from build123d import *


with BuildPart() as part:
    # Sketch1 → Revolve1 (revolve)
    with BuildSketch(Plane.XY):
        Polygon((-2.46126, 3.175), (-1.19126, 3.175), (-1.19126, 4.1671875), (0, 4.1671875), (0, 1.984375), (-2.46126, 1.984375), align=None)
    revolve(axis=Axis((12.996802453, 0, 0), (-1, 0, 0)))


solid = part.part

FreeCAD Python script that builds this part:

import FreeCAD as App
import Part
import Sketcher
from FreeCAD import Vector
Q = App.Units.Quantity


def add_polygon(sketch, points):
    """Adds a closed chain of lines whose ends are joined by coincident constraints."""
    first, n = sketch.GeometryCount, len(points)
    for a, b in zip(points, points[1:] + points[:1]):
        sketch.addGeometry(Part.LineSegment(App.Vector(*a, 0), App.Vector(*b, 0)), False)
    for i in range(n):
        sketch.addConstraint(Sketcher.Constraint("Coincident", first + i, 2, first + (i + 1) % n, 1))

doc = App.newDocument("Part")
body = doc.addObject("PartDesign::Body", "Body")

# Sketch on XY plane
sketch1 = body.newObject("Sketcher::SketchObject", "Sketch")
sketch1.AttachmentSupport = (doc.getObject("XY_Plane"), [""])
sketch1.MapMode = "FlatFace"
add_polygon(sketch1, [(-1.2, 3.2), (-2.5, 3.2), (-2.5, 2), (0, 2), (0, 4.2), (-1.2, 4.2)])  # lines 0-5
sketch1.addConstraint([
    Sketcher.Constraint("Horizontal", 0),
    Sketcher.Constraint("Vertical", 1),
    Sketcher.Constraint("Horizontal", 2),
    Sketcher.Constraint("Vertical", 3),
    Sketcher.Constraint("Horizontal", 4),
    Sketcher.Constraint("Vertical", 5),
    Sketcher.Constraint("PointOnObject", 2, 2, -2),
    Sketcher.Constraint("DistanceX", 0, 2, 0, 1, Q("0.05 in")),
    Sketcher.Constraint("DistanceY", 1, 2, 1, 1, Q("0.046875 in")),
    Sketcher.Constraint("DistanceX", 2, 1, 2, 2, Q("0.0969 in")),
    Sketcher.Constraint("DistanceY", -1, 1, 0, 2, Q("0.125 in")),
    Sketcher.Constraint("DistanceY", 3, 1, 3, 2, Q("2.182812 mm")),
])
revolution = body.newObject("PartDesign::Revolution", "Revolution")
revolution.Profile = sketch1
revolution.ReferenceAxis = (sketch1, ["H_Axis"])
revolution.Angle = 360

doc.recompute()
